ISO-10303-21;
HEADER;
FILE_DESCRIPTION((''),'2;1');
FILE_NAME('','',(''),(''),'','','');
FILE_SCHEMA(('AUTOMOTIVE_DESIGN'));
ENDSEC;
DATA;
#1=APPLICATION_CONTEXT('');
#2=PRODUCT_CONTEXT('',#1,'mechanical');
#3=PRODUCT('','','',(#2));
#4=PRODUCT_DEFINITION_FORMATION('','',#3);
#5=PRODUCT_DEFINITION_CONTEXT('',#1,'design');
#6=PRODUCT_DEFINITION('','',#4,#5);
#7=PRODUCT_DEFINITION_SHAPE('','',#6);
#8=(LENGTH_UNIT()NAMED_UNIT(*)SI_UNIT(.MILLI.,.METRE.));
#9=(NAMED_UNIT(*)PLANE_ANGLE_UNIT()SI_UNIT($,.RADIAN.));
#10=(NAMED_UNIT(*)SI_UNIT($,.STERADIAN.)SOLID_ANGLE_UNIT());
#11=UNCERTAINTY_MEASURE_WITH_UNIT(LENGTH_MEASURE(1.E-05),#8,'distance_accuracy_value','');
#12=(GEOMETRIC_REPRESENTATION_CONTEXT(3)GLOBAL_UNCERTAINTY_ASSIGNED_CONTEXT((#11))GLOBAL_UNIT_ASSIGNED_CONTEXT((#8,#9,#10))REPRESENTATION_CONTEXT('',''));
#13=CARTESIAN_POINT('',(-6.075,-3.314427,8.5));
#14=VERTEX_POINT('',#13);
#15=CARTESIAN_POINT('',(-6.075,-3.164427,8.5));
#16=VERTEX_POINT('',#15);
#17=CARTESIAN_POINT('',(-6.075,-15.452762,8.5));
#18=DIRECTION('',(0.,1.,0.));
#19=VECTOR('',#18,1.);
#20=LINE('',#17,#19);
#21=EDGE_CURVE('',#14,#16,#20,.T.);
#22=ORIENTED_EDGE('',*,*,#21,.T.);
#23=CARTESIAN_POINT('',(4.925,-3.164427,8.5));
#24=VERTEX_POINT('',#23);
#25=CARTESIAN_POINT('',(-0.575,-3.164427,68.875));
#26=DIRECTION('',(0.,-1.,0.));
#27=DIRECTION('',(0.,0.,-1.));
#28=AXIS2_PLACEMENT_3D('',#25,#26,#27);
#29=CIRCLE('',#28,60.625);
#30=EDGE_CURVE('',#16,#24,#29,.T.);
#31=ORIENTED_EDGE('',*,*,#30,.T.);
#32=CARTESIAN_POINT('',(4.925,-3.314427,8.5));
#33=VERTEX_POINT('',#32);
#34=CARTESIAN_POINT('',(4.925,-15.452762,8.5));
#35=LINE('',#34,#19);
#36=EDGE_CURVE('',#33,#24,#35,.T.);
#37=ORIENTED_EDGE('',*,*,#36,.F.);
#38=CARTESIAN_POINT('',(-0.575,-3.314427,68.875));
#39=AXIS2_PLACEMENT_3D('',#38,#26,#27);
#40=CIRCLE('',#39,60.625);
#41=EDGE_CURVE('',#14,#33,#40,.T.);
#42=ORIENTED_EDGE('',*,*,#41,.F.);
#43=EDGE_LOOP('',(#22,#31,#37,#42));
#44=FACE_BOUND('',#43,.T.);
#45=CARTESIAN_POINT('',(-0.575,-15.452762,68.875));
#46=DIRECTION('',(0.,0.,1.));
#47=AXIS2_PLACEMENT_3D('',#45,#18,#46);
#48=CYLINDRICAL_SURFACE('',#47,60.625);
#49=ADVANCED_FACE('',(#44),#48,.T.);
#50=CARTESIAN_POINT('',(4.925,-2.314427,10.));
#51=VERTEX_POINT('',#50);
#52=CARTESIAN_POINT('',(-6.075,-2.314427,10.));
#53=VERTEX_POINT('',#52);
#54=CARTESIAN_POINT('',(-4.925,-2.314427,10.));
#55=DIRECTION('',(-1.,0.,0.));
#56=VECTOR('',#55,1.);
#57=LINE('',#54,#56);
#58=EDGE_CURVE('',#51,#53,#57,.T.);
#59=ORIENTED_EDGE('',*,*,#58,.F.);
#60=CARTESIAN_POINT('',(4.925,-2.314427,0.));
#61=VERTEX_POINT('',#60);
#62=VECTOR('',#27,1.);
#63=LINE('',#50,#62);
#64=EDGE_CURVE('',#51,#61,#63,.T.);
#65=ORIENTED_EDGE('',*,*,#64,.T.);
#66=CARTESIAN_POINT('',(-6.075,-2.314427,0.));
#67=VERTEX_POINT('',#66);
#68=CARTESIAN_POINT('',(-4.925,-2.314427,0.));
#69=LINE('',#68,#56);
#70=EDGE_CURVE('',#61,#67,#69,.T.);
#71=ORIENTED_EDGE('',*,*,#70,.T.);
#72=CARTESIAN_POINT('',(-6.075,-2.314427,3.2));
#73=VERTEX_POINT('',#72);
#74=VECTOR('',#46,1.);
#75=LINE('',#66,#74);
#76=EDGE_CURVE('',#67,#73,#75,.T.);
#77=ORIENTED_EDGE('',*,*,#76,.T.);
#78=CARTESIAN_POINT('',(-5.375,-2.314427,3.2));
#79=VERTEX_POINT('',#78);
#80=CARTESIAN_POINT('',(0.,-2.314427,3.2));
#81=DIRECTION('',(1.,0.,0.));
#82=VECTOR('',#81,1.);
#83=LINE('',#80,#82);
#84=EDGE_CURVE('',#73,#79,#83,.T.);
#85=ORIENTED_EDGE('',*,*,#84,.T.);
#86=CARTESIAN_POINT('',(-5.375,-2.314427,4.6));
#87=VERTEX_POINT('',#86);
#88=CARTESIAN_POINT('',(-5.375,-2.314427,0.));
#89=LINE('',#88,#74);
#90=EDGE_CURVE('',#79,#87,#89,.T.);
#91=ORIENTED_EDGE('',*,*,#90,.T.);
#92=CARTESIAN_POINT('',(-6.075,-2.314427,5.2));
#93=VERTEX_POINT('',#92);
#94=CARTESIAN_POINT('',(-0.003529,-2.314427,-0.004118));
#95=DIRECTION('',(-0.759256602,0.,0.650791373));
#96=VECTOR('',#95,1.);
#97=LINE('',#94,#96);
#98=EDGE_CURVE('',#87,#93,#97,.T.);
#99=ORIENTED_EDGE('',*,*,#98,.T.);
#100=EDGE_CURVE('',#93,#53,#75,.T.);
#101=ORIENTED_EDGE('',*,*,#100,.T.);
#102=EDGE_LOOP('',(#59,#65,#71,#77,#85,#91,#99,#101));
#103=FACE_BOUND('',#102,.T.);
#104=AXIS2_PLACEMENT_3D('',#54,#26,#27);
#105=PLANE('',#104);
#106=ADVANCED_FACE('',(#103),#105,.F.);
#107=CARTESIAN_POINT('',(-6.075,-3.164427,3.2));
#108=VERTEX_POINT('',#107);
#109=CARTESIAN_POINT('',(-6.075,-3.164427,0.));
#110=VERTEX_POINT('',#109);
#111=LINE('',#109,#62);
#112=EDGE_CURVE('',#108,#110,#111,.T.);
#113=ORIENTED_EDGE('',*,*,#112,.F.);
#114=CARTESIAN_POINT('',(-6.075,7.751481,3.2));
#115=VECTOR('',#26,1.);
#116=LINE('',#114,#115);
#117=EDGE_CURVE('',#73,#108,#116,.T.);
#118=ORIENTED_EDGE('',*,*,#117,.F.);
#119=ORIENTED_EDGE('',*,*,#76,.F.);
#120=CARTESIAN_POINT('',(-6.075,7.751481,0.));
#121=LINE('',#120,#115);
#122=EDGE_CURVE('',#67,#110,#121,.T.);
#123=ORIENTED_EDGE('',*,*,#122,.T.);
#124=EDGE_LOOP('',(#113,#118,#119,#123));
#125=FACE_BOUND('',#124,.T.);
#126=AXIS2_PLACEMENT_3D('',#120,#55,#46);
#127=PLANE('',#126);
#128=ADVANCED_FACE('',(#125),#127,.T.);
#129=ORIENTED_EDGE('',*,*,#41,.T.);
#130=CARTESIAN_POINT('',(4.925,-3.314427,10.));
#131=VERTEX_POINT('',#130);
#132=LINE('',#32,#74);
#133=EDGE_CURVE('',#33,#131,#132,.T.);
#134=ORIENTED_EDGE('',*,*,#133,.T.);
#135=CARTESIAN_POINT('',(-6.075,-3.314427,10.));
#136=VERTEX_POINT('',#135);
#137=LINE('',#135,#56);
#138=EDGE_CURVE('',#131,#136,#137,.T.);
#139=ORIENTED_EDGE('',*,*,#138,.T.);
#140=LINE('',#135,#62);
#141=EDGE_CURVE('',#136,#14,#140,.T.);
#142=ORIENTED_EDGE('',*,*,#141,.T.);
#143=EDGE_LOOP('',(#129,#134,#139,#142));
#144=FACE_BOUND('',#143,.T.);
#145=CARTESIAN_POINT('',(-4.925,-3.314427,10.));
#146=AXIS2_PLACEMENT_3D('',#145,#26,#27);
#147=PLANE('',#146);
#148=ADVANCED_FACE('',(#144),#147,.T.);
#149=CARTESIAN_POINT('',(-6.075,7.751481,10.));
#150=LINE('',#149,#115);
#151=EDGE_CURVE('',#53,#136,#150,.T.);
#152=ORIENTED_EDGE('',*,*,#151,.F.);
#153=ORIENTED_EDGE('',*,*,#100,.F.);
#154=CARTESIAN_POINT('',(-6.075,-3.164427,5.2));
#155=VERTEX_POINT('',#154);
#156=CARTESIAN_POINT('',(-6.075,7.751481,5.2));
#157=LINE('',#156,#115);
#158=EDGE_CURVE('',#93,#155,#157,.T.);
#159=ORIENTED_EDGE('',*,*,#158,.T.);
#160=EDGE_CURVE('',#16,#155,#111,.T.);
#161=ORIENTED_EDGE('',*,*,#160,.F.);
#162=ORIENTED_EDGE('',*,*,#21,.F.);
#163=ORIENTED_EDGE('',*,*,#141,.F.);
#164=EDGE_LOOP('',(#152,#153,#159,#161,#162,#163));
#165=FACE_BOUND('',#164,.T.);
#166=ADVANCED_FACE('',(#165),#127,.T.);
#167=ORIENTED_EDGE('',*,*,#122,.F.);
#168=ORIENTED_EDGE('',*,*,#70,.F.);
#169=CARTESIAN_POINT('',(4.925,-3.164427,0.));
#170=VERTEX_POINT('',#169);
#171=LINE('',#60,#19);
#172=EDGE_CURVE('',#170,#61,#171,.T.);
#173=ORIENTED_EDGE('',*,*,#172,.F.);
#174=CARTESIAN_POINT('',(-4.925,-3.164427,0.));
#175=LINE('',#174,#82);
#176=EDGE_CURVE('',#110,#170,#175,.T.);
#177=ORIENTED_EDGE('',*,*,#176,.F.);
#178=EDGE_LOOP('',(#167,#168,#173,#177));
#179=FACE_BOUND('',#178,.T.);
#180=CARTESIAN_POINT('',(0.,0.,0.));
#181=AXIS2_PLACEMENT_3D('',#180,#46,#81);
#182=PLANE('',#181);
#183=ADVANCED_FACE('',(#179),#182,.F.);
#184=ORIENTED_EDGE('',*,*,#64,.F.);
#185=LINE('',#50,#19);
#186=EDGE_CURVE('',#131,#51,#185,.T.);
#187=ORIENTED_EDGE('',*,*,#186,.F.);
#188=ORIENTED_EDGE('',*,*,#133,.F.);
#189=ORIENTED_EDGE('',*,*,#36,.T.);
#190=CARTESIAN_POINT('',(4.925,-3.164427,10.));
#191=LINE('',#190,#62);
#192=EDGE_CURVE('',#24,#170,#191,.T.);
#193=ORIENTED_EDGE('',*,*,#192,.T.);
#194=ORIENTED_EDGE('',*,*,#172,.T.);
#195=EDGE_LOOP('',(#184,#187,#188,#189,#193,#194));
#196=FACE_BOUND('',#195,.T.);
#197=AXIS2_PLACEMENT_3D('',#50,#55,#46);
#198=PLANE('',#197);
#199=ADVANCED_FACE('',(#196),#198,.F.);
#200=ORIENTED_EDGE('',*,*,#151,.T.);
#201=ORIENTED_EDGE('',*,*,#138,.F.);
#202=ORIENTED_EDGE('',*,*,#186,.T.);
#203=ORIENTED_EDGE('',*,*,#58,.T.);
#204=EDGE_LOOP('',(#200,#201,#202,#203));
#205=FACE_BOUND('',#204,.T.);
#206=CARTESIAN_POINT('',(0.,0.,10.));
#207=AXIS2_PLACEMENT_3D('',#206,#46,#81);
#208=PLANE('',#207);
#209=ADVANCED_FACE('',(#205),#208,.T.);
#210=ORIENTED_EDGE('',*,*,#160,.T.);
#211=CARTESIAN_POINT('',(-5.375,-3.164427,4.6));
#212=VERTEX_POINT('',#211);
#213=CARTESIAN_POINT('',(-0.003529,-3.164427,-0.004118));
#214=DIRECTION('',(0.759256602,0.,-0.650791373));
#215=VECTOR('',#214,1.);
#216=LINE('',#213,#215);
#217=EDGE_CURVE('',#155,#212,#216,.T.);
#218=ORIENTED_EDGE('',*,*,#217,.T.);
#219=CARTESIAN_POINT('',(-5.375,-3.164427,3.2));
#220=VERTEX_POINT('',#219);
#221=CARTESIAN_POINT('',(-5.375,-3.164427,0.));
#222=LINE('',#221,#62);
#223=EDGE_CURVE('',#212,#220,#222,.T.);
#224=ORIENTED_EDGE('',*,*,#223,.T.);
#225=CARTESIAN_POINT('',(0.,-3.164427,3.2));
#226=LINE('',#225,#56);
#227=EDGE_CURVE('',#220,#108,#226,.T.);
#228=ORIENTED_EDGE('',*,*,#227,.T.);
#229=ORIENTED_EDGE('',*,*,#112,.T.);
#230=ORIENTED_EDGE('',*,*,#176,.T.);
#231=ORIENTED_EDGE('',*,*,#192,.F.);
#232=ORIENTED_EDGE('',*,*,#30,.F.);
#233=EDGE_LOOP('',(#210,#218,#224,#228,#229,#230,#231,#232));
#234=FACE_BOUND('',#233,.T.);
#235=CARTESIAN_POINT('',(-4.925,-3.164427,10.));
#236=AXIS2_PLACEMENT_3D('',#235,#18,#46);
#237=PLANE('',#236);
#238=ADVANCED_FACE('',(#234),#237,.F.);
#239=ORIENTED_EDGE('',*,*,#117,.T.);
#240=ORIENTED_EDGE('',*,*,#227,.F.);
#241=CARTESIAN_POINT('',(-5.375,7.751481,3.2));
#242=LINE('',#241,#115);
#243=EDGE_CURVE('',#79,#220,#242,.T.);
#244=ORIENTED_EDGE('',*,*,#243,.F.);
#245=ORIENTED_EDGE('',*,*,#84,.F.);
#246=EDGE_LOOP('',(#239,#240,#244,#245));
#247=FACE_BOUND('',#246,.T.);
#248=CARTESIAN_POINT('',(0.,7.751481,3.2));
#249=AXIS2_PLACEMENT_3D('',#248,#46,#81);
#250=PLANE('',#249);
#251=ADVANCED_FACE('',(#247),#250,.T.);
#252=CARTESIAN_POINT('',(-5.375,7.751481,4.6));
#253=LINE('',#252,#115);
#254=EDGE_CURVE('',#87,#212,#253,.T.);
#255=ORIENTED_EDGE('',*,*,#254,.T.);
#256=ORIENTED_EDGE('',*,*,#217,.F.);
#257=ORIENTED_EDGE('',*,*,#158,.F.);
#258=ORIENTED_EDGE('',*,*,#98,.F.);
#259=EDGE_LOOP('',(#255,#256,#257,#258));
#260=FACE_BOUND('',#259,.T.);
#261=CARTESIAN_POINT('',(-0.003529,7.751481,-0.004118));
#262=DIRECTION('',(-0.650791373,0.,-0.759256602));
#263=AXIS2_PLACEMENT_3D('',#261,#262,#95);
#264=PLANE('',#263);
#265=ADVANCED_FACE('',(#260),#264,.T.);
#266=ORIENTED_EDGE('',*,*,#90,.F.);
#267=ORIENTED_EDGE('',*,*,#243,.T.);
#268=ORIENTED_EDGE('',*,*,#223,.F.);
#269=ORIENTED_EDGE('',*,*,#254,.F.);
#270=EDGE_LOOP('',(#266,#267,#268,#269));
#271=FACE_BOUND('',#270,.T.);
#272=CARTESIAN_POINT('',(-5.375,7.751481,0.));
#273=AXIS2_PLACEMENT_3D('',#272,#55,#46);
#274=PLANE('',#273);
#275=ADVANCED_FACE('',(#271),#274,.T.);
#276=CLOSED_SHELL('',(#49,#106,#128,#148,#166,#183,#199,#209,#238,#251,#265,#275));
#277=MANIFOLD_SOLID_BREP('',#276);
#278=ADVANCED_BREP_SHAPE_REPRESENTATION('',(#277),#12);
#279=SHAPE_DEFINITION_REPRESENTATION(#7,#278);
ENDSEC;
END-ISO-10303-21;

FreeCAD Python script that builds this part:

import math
import FreeCAD as App
import Part
import Sketcher
from FreeCAD import Vector
Q = App.Units.Quantity

doc = App.newDocument("Part")
body = doc.addObject("PartDesign::Body", "Body")

sketch1 = doc.addObject("Sketcher::SketchObject", "Sketch")
body.addObject(sketch1)
sketch1.AttachmentSupport = (doc.XY_Plane, [""])
sketch1.MapMode = "FlatFace"
sketch1.addGeometry(Part.LineSegment(Vector(-4.9, -2.3, 0), Vector(-4.9, -3.2, 0)), False)
sketch1.addGeometry(Part.LineSegment(Vector(-4.9, -3.2, 0), Vector(4.9, -3.2, 0)), False)
sketch1.addGeometry(Part.LineSegment(Vector(4.9, -3.2, 0), Vector(4.9, -2.3, 0)), False)
sketch1.addGeometry(Part.LineSegment(Vector(4.9, -2.3, 0), Vector(-4.9, -2.3, 0)), False)
sketch1.addConstraint(Sketcher.Constraint("Coincident", 0, 2, 1, 1))
sketch1.addConstraint(Sketcher.Constraint("Coincident", 1, 2, 2, 1))
sketch1.addConstraint(Sketcher.Constraint("Coincident", 2, 2, 3, 1))
sketch1.addConstraint(Sketcher.Constraint("Coincident", 3, 2, 0, 1))
sketch1.addConstraint(Sketcher.Constraint("Vertical", 0))
sketch1.addConstraint(Sketcher.Constraint("Horizontal", 1))
sketch1.addConstraint(Sketcher.Constraint("Vertical", 2))
sketch1.addConstraint(Sketcher.Constraint("Horizontal", 3))
sketch1.addConstraint(Sketcher.Constraint("DistanceX", 1, 1, 1, 2, Q("9.85 mm")))
sketch1.addConstraint(Sketcher.Constraint("DistanceY", 0, 2, 0, 1, Q("0.85 mm")))
sketch1.addConstraint(Sketcher.Constraint("DistanceX", 0, 2, -1, 1, Q("4.925 mm")))
sketch1.addConstraint(Sketcher.Constraint("DistanceY", 0, 2, -1, 1, Q("3.164427 mm")))
pad1 = doc.addObject("PartDesign::Pad", "Pad")
body.addObject(pad1)
pad1.Profile = sketch1
pad1.Length = 10

sketch2 = doc.addObject("Sketcher::SketchObject", "Sketch001")
body.addObject(sketch2)
sketch2.AttachmentSupport = (doc.XZ_Plane, [""])
sketch2.MapMode = "FlatFace"
sketch2.AttachmentOffset = App.Placement(Vector(0, 0, 3.164427), App.Rotation())
sketch2.addGeometry(Part.LineSegment(Vector(-4.9, 0, 0), Vector(-4.9, 10, 0)), False)
sketch2.addGeometry(Part.LineSegment(Vector(-4.9, 10, 0), Vector(-6.1, 10, 0)), False)
sketch2.addGeometry(Part.LineSegment(Vector(-6.1, 10, 0), Vector(-6.1, 5.2, 0)), False)
sketch2.addGeometry(Part.LineSegment(Vector(-6.1, 5.2, 0), Vector(-5.4, 4.6, 0)), False)
sketch2.addGeometry(Part.LineSegment(Vector(-5.4, 4.6, 0), Vector(-5.4, 3.2, 0)), False)
sketch2.addGeometry(Part.LineSegment(Vector(-5.4, 3.2, 0), Vector(-6.1, 3.2, 0)), False)
sketch2.addGeometry(Part.LineSegment(Vector(-6.1, 3.2, 0), Vector(-6.1, 0, 0)), False)
sketch2.addGeometry(Part.LineSegment(Vector(-6.1, 0, 0), Vector(-4.9, 0, 0)), False)
sketch2.addConstraint(Sketcher.Constraint("Coincident", 0, 2, 1, 1))
sketch2.addConstraint(Sketcher.Constraint("Coincident", 1, 2, 2, 1))
sketch2.addConstraint(Sketcher.Constraint("Coincident", 2, 2, 3, 1))
sketch2.addConstraint(Sketcher.Constraint("Coincident", 3, 2, 4, 1))
sketch2.addConstraint(Sketcher.Constraint("Coincident", 4, 2, 5, 1))
sketch2.addConstraint(Sketcher.Constraint("Coincident", 5, 2, 6, 1))
sketch2.addConstraint(Sketcher.Constraint("Coincident", 6, 2, 7, 1))
sketch2.addConstraint(Sketcher.Constraint("Coincident", 7, 2, 0, 1))
sketch2.addConstraint(Sketcher.Constraint("Vertical", 0))
sketch2.addConstraint(Sketcher.Constraint("Horizontal", 1))
sketch2.addConstraint(Sketcher.Constraint("Vertical", 2))
sketch2.addConstraint(Sketcher.Constraint("Vertical", 4))
sketch2.addConstraint(Sketcher.Constraint("Horizontal", 5))
sketch2.addConstraint(Sketcher.Constraint("Vertical", 6))
sketch2.addConstraint(Sketcher.Constraint("Horizontal", 7))
sketch2.addConstraint(Sketcher.Constraint("PointOnObject", 6, 2, -1))
sketch2.addConstraint(Sketcher.Constraint("Vertical", 2, 2, 5, 2))
sketch2.addConstraint(Sketcher.Constraint("DistanceY", 0, 1, 0, 2, Q("10 mm")))
sketch2.addConstraint(Sketcher.Constraint("DistanceX", 5, 2, 5, 1, Q("0.7 mm")))
sketch2.addConstraint(Sketcher.Constraint("DistanceY", 2, 2, 2, 1, Q("4.8 mm")))
sketch2.addConstraint(Sketcher.Constraint("DistanceY", 4, 2, 4, 1, Q("1.4 mm")))
sketch2.addConstraint(Sketcher.Constraint("DistanceY", 6, 2, 6, 1, Q("3.2 mm")))
sketch2.addConstraint(Sketcher.Constraint("DistanceX", 1, 2, 1, 1, Q("1.15 mm")))
sketch2.addConstraint(Sketcher.Constraint("DistanceX", 0, 2, -1, 1, Q("4.925 mm")))
pad2 = doc.addObject("PartDesign::Pad", "Pad001")
body.addObject(pad2)
pad2.Profile = sketch2
pad2.Length = 0.85
pad2.Reversed = True

sketch3 = doc.addObject("Sketcher::SketchObject", "Sketch002")
body.addObject(sketch3)
sketch3.AttachmentSupport = (doc.XZ_Plane, [""])
sketch3.MapMode = "FlatFace"
sketch3.AttachmentOffset = App.Placement(Vector(0, 0, 3.164427), App.Rotation())
sketch3.addGeometry(Part.LineSegment(Vector(4.9, 10, 0), Vector(-6.1, 10, 0)), False)
sketch3.addGeometry(Part.LineSegment(Vector(-6.1, 10, 0), Vector(-6.1, 8.5, 0)), False)
sketch3.addGeometry(Part.ArcOfCircle(Part.Circle(Vector(-0.6, 68.9, 0), Vector(0, 0, 1), 60.6), math.radians(-95.21), math.radians(-84.79)), False)
sketch3.addGeometry(Part.LineSegment(Vector(4.9, 8.5, 0), Vector(4.9, 10, 0)), False)
sketch3.addConstraint(Sketcher.Constraint("Coincident", 0, 2, 1, 1))
sketch3.addConstraint(Sketcher.Constraint("Coincident", 1, 2, 2, 1))
sketch3.addConstraint(Sketcher.Constraint("Coincident", 2, 2, 3, 1))
sketch3.addConstraint(Sketcher.Constraint("Coincident", 3, 2, 0, 1))
sketch3.addConstraint(Sketcher.Constraint("Horizontal", 0))
sketch3.addConstraint(Sketcher.Constraint("Vertical", 1))
sketch3.addConstraint(Sketcher.Constraint("Vertical", 3))
sketch3.addConstraint(Sketcher.Constraint("Horizontal", 1, 2, 2, 2))
sketch3.addConstraint(Sketcher.Constraint("DistanceX", 0, 2, 0, 1, Q("11 mm")))
sketch3.addConstraint(Sketcher.Constraint("DistanceY", 1, 2, 1, 1, Q("1.5 mm")))
sketch3.addConstraint(Sketcher.Constraint("DistanceY", -1, 1, 0, 2, Q("10 mm")))
sketch3.addConstraint(Sketcher.Constraint("Radius", 2, Q("60.625 mm")))
sketch3.addConstraint(Sketcher.Constraint("DistanceX", 2, 3, -1, 1, Q("0.575 mm")))
pad3 = doc.addObject("PartDesign::Pad", "Pad002")
body.addObject(pad3)
pad3.Profile = sketch3
pad3.Length = 0.15

doc.recompute()
